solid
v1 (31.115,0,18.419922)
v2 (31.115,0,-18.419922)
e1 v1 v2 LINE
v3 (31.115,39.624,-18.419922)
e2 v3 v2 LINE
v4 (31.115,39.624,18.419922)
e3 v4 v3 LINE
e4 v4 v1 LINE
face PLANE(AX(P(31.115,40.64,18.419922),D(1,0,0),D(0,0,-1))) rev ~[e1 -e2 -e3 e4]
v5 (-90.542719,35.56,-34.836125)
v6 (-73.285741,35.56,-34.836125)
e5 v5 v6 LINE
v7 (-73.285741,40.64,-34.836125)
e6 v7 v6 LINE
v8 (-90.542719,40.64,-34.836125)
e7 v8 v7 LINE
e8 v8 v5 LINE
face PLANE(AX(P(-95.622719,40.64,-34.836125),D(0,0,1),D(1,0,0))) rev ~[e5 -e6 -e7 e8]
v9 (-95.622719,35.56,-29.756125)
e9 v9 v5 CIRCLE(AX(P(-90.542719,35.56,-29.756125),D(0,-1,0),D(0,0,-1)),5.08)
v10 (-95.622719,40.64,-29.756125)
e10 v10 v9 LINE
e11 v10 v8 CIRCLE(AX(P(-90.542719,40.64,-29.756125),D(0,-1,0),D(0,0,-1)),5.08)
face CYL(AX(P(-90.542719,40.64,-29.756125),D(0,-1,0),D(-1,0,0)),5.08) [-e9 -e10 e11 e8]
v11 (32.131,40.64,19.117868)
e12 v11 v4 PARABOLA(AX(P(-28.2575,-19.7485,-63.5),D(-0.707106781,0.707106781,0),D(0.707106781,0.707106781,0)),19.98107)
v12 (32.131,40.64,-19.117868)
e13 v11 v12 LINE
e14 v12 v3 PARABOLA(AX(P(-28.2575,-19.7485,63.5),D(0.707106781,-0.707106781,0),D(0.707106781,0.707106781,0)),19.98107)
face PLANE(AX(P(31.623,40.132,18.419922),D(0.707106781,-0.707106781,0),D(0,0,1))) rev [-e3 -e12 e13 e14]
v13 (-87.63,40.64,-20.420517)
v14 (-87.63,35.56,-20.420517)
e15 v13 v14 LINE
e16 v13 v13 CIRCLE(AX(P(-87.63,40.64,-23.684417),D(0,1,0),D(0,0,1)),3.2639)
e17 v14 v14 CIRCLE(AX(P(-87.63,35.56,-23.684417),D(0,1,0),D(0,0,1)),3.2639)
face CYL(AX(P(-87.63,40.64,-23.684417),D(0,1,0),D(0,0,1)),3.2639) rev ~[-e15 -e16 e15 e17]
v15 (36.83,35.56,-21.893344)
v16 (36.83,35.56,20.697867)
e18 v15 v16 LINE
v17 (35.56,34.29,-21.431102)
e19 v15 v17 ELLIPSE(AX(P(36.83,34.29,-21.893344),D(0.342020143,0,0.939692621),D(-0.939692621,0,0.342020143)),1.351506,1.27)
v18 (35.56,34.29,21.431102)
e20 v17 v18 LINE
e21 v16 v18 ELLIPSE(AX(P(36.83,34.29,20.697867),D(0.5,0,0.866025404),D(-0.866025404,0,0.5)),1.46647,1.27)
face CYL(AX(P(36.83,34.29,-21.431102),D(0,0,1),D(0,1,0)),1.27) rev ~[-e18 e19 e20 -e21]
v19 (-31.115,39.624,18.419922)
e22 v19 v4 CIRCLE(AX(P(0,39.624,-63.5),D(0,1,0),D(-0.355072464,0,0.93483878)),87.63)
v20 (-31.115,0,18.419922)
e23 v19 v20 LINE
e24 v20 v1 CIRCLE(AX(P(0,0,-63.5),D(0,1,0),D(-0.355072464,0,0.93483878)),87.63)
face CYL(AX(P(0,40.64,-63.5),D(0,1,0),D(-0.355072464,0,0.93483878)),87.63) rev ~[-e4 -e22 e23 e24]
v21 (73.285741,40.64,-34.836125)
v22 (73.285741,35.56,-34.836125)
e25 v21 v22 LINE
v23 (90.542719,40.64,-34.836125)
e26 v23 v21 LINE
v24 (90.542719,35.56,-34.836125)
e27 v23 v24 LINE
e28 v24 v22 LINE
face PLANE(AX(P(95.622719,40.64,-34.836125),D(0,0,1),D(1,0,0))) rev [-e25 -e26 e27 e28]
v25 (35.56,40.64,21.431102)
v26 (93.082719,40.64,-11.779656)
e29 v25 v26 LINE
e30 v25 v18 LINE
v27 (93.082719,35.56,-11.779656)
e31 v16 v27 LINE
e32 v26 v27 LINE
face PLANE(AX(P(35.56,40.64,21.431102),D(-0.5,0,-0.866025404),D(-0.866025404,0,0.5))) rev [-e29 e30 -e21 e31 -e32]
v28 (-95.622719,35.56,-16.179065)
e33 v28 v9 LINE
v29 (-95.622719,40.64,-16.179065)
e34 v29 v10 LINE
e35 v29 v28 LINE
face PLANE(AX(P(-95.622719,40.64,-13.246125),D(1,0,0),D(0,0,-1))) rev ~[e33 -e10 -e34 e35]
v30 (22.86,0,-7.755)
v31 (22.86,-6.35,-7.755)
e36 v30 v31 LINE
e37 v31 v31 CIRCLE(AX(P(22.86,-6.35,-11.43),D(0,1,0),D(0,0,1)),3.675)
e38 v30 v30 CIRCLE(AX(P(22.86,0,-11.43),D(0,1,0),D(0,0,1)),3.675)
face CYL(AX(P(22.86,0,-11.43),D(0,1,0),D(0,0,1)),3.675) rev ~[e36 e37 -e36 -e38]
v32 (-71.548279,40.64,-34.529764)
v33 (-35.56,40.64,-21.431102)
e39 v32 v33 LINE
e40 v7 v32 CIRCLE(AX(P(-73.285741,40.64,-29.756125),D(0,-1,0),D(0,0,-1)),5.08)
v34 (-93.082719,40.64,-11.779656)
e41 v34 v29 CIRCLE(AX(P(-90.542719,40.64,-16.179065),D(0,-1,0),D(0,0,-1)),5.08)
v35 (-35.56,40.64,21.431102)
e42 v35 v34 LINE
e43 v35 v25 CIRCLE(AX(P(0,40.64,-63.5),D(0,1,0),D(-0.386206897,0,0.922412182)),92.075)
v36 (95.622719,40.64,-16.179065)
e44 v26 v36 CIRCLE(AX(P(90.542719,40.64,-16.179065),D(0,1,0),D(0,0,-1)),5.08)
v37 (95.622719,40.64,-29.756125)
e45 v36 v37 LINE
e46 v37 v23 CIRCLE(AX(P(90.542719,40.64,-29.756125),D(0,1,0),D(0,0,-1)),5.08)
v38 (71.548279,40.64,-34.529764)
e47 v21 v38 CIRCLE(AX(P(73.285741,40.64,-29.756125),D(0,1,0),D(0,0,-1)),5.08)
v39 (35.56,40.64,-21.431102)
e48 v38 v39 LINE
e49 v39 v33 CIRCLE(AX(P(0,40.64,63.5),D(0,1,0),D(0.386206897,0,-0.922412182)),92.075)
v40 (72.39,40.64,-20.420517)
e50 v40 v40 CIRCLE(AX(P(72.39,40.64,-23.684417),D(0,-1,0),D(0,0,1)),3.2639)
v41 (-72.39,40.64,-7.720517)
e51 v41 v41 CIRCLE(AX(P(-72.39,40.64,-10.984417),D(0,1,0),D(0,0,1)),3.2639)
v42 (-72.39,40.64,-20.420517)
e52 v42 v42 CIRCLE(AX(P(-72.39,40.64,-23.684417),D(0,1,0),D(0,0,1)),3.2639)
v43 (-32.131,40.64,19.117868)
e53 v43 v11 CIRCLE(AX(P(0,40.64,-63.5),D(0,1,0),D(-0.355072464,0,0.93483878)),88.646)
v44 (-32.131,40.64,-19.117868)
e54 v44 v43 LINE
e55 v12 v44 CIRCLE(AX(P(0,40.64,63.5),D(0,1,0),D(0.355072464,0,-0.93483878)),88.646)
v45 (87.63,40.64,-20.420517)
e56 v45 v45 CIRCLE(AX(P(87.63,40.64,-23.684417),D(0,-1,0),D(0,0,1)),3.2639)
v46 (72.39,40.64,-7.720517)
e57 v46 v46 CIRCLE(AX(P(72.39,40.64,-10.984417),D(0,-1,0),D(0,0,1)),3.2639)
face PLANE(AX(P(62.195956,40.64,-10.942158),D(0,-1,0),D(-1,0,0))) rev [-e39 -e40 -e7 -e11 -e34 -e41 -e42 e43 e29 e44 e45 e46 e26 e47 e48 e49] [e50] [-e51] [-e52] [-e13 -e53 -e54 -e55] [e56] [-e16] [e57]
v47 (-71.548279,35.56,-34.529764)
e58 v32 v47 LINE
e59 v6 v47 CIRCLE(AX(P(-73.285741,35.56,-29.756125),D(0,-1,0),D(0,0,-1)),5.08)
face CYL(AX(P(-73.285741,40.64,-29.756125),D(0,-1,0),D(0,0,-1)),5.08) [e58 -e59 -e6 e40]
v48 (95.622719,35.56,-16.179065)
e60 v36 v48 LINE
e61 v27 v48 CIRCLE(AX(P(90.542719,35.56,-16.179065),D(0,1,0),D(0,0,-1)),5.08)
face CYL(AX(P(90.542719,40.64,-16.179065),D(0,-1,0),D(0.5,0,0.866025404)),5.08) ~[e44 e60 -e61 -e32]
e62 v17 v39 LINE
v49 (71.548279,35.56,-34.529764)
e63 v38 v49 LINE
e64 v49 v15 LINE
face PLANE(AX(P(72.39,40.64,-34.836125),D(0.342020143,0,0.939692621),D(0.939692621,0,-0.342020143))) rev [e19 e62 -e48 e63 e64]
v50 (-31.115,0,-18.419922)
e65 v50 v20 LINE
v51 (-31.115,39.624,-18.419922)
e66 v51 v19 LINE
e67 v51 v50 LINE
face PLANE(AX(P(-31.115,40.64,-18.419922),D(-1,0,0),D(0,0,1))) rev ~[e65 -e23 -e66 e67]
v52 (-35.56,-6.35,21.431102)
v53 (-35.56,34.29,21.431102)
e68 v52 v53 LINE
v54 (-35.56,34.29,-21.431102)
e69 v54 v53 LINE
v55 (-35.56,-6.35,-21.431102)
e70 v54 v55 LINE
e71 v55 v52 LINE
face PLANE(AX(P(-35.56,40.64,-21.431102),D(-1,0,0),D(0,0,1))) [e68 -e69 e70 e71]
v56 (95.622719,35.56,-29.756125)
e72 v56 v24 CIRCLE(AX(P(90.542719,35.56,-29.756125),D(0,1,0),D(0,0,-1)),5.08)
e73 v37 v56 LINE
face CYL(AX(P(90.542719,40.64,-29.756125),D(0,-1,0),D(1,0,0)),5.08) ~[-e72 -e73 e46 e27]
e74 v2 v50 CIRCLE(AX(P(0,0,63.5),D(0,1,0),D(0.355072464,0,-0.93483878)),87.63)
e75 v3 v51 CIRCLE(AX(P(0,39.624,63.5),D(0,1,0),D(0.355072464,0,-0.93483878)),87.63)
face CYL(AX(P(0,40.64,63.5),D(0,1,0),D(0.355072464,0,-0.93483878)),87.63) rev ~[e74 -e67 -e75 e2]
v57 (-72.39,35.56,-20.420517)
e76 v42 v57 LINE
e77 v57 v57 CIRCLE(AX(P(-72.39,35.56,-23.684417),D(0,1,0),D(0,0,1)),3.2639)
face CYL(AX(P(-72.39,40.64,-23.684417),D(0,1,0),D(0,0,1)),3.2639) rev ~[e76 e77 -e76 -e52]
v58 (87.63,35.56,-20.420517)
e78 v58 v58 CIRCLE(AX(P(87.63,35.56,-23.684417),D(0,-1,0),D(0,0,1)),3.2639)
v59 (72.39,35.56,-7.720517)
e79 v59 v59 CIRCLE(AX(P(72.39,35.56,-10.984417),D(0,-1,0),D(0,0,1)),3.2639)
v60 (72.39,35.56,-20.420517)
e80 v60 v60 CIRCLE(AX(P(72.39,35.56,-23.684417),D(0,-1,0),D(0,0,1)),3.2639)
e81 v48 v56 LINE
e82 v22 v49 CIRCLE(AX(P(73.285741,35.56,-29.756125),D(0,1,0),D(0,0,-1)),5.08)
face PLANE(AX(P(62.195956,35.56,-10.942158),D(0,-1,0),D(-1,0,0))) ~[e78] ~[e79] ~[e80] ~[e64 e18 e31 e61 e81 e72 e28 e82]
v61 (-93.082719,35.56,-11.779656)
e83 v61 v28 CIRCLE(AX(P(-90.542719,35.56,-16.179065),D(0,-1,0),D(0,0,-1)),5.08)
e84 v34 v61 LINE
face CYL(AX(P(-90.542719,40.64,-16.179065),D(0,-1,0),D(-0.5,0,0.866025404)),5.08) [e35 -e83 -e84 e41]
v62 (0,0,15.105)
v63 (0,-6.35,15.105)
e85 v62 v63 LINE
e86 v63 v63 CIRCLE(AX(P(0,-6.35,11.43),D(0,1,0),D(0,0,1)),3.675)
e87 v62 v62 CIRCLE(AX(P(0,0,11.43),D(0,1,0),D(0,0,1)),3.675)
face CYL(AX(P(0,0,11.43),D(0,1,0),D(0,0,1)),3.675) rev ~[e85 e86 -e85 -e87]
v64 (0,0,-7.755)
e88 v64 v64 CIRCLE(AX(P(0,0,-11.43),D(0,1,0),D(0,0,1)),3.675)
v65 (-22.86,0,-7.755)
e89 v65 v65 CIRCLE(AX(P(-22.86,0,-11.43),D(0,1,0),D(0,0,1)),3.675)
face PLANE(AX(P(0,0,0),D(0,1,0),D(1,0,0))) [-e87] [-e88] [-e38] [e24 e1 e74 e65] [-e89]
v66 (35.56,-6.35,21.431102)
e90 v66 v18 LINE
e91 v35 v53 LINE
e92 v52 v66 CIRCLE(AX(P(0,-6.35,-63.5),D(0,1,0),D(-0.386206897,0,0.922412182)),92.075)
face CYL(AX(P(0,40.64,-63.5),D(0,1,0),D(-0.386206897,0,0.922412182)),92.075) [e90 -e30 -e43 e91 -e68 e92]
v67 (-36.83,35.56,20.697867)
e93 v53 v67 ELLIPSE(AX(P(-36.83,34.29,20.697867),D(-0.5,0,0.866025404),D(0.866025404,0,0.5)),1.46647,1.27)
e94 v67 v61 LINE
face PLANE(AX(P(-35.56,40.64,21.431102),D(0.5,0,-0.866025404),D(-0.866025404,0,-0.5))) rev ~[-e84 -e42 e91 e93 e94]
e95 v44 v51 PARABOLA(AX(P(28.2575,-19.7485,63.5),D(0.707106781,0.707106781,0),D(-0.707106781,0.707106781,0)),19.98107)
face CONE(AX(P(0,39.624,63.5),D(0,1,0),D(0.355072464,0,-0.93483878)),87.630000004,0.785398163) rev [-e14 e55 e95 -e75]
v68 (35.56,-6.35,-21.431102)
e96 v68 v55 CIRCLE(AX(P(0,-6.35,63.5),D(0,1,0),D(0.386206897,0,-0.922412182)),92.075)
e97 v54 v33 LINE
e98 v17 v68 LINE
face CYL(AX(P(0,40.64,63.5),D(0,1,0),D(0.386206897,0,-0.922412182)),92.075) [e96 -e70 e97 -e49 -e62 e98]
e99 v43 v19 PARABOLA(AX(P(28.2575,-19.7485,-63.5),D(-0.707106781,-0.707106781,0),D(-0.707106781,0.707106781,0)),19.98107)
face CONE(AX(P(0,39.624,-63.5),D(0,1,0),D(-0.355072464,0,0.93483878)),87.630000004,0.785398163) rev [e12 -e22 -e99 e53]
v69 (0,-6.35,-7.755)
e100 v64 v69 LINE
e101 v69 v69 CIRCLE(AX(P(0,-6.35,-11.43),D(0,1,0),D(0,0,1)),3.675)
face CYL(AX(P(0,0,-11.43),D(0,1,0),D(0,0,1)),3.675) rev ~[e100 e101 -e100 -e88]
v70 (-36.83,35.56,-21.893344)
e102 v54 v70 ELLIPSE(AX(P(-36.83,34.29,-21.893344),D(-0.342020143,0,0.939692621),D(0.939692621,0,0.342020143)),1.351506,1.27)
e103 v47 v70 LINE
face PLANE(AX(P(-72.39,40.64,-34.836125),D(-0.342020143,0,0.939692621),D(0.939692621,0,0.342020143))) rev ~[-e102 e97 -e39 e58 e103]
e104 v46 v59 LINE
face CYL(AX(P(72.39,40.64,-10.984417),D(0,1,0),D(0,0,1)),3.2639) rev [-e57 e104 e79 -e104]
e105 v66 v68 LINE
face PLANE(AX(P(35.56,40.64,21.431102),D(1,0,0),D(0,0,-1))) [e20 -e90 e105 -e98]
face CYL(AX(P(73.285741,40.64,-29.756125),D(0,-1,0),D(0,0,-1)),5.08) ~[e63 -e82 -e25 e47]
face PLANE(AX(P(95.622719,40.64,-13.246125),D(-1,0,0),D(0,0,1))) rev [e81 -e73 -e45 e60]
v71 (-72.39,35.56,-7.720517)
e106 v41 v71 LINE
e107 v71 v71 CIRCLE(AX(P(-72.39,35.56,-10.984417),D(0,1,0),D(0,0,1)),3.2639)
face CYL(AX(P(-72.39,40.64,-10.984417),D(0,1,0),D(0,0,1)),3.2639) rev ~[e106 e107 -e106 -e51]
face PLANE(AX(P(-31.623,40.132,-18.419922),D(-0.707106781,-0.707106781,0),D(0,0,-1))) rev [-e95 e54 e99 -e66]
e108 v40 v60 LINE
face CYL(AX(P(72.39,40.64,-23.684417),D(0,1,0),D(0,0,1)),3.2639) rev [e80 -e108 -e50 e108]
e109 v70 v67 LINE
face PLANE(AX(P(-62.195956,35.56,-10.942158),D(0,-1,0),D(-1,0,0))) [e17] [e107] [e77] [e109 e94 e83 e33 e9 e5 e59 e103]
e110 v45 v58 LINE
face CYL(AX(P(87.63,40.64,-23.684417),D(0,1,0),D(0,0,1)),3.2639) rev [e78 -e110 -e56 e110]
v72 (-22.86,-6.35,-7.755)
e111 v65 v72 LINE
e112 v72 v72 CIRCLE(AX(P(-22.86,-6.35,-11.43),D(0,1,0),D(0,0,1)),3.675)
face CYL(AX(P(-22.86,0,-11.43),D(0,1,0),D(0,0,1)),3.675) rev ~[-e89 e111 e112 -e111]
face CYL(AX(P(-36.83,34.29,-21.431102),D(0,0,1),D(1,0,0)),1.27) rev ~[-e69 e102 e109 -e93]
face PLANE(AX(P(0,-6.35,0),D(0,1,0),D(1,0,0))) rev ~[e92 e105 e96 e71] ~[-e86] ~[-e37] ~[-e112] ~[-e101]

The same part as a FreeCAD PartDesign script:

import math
import FreeCAD as App
import Part
import Sketcher
Q = App.Units.Quantity


def edges_at(feature, points):
    """Names of the edges that pass closest to the given points."""
    edges = feature.Shape.Edges
    near = lambda p: min(range(len(edges)), key=lambda i: edges[i].distToShape(Part.Vertex(*p))[0])
    return sorted({f"Edge{near(p) + 1}" for p in points})


def add_polygon(sketch, points):
    """Adds a closed chain of lines whose ends are joined by coincident constraints."""
    first, n = sketch.GeometryCount, len(points)
    for a, b in zip(points, points[1:] + points[:1]):
        sketch.addGeometry(Part.LineSegment(App.Vector(*a, 0), App.Vector(*b, 0)), False)
    for i in range(n):
        sketch.addConstraint(Sketcher.Constraint("Coincident", first + i, 2, first + (i + 1) % n, 1))

doc = App.newDocument("Part")
body = doc.addObject("PartDesign::Body", "Body")

# Sketch on XZ plane
sketch1 = body.newObject("Sketcher::SketchObject", "Sketch")
sketch1.AttachmentSupport = (doc.getObject("XZ_Plane"), [""])
sketch1.MapMode = "FlatFace"
sketch1.addGeometry(Part.LineSegment(App.Vector(-35.6, -21.4, 0), App.Vector(-35.6, 21.4, 0)), False)
sketch1.addGeometry(Part.ArcOfCircle(Part.Circle(App.Vector(0, -63.5, 0), App.Vector(0, 0, 1), 92.1), math.radians(67), math.radians(113)), False)
sketch1.addGeometry(Part.LineSegment(App.Vector(35.6, 21.4, 0), App.Vector(35.6, -21.4, 0)), False)
sketch1.addGeometry(Part.ArcOfCircle(Part.Circle(App.Vector(0, 63.5, 0), App.Vector(0, 0, 1), 92.1), math.radians(-113), math.radians(-67)), False)
sketch1.addGeometry(Part.Circle(App.Vector(0, 11.4, 0), App.Vector(0, 0, 1), 3.7), False)
sketch1.addGeometry(Part.Circle(App.Vector(-22.9, -11.4, 0), App.Vector(0, 0, 1), 3.7), False)
sketch1.addGeometry(Part.Circle(App.Vector(0, -11.4, 0), App.Vector(0, 0, 1), 3.7), False)
sketch1.addGeometry(Part.Circle(App.Vector(22.9, -11.4, 0), App.Vector(0, 0, 1), 3.7), False)
sketch1.addConstraint(Sketcher.Constraint("Coincident", 0, 2, 1, 2))
sketch1.addConstraint(Sketcher.Constraint("Coincident", 1, 1, 2, 1))
sketch1.addConstraint(Sketcher.Constraint("Coincident", 2, 2, 3, 2))
sketch1.addConstraint(Sketcher.Constraint("Coincident", 3, 1, 0, 1))
sketch1.addConstraint(Sketcher.Constraint("Vertical", 0))
sketch1.addConstraint(Sketcher.Constraint("Vertical", 2))
sketch1.addConstraint(Sketcher.Constraint("Equal", 1, 3))
sketch1.addConstraint(Sketcher.Constraint("Equal", 4, 5))
sketch1.addConstraint(Sketcher.Constraint("Equal", 5, 6))
sketch1.addConstraint(Sketcher.Constraint("Equal", 6, 7))
sketch1.addConstraint(Sketcher.Constraint("Symmetric", 1, 3, 3, 3, -1, 1))
sketch1.addConstraint(Sketcher.Constraint("Symmetric", 4, 3, 6, 3, -1, 1))
sketch1.addConstraint(Sketcher.Constraint("Symmetric", 5, 3, 7, 3, -2))
sketch1.addConstraint(Sketcher.Constraint("Symmetric", 0, 2, 1, 1, -2))
sketch1.addConstraint(Sketcher.Constraint("PointOnObject", 4, 3, -2))
sketch1.addConstraint(Sketcher.Constraint("Horizontal", 5, 3, 6, 3))
sketch1.addConstraint(Sketcher.Constraint("Radius", 1, Q("3.625 in")))
sketch1.addConstraint(Sketcher.Constraint("DistanceY", 1, 3, 3, 3, Q("5 in")))
sketch1.addConstraint(Sketcher.Constraint("DistanceX", 5, 3, -1, 1, Q("0.9 in")))
sketch1.addConstraint(Sketcher.Constraint("DistanceX", 0, 2, -1, 1, Q("1.4 in")))
sketch1.addConstraint(Sketcher.Constraint("DistanceY", 5, 3, 4, 3, Q("0.9 in")))
sketch1.addConstraint(Sketcher.Constraint("Diameter", 4, 7.35))
pad1 = body.newObject("PartDesign::Pad", "Pad")
pad1.Profile = sketch1
pad1.Length = Q("0.25 in")

# Sketch on XZ plane
sketch2 = body.newObject("Sketcher::SketchObject", "Sketch001")
sketch2.AttachmentSupport = (doc.getObject("XZ_Plane"), [""])
sketch2.MapMode = "FlatFace"
sketch2.AttachmentOffset = App.Placement(App.Vector(0, 0, -1.6 * 25.4), App.Rotation())
sketch2.addGeometry(Part.LineSegment(App.Vector(-36, -21, 0), App.Vector(-36, 21, 0)), False)
sketch2.addGeometry(Part.ArcOfCircle(Part.Circle(App.Vector(0, -63, 0), App.Vector(0, 0, 1), 92), math.radians(67), math.radians(113)), False)
sketch2.addGeometry(Part.LineSegment(App.Vector(36, 21, 0), App.Vector(36, -21, 0)), False)
sketch2.addGeometry(Part.ArcOfCircle(Part.Circle(App.Vector(0, 63, 0), App.Vector(0, 0, 1), 92), math.radians(-113), math.radians(-67)), False)
sketch2.addGeometry(Part.LineSegment(App.Vector(-31, 18, 0), App.Vector(-31, -18, 0)), False)
sketch2.addGeometry(Part.ArcOfCircle(Part.Circle(App.Vector(0, 64, 0), App.Vector(0, 0, 1), 88), math.radians(-111), math.radians(-69)), False)
sketch2.addGeometry(Part.LineSegment(App.Vector(31, -18, 0), App.Vector(31, 18, 0)), False)
sketch2.addGeometry(Part.ArcOfCircle(Part.Circle(App.Vector(0, -64, 0), App.Vector(0, 0, 1), 88), math.radians(69), math.radians(111)), False)
sketch2.addConstraint(Sketcher.Constraint("Coincident", 0, 2, 1, 2))
sketch2.addConstraint(Sketcher.Constraint("Coincident", 1, 1, 2, 1))
sketch2.addConstraint(Sketcher.Constraint("Coincident", 2, 2, 3, 2))
sketch2.addConstraint(Sketcher.Constraint("Coincident", 3, 1, 0, 1))
sketch2.addConstraint(Sketcher.Constraint("Coincident", 4, 2, 5, 1))
sketch2.addConstraint(Sketcher.Constraint("Coincident", 5, 2, 6, 1))
sketch2.addConstraint(Sketcher.Constraint("Coincident", 6, 2, 7, 1))
sketch2.addConstraint(Sketcher.Constraint("Coincident", 7, 2, 4, 1))
sketch2.addConstraint(Sketcher.Constraint("Vertical", 0))
sketch2.addConstraint(Sketcher.Constraint("Vertical", 2))
sketch2.addConstraint(Sketcher.Constraint("Vertical", 4))
sketch2.addConstraint(Sketcher.Constraint("Vertical", 6))
sketch2.addConstraint(Sketcher.Constraint("Coincident", 5, 3, 3, 3))
sketch2.addConstraint(Sketcher.Constraint("Coincident", 7, 3, 1, 3))
sketch2.addConstraint(Sketcher.Constraint("Equal", 1, 3))
sketch2.addConstraint(Sketcher.Constraint("Equal", 5, 7))
sketch2.addConstraint(Sketcher.Constraint("Symmetric", 1, 3, 3, 3, -1, 1))
sketch2.addConstraint(Sketcher.Constraint("Symmetric", 0, 2, 1, 1, -2))
sketch2.addConstraint(Sketcher.Constraint("Horizontal", 4, 2, 5, 2))
sketch2.addConstraint(Sketcher.Constraint("Radius", 5, Q("3.45 in")))
sketch2.addConstraint(Sketcher.Constraint("Radius", 1, Q("3.625 in")))
sketch2.addConstraint(Sketcher.Constraint("DistanceY", 1, 3, 3, 3, Q("5 in")))
sketch2.addConstraint(Sketcher.Constraint("DistanceX", 0, 2, -1, 1, Q("1.4 in")))
sketch2.addConstraint(Sketcher.Constraint("DistanceX", 4, 2, 5, 2, Q("2.45 in")))
pad2 = body.newObject("PartDesign::Pad", "Pad001")
pad2.Profile = sketch2
pad2.Length = Q("1.6 in")
doc.recompute()

chamfer = body.newObject("PartDesign::Chamfer", "Chamfer")
chamfer.Base = (pad2, edges_at(pad2, [
    (0, 40.64, -24.13),
    (-31.115, 40.64, 0),
    (0, 40.64, 24.13),
    (31.115, 40.64, 0),
]))
chamfer.Size = Q("0.04 in")

# Sketch on XZ plane
sketch3 = body.newObject("Sketcher::SketchObject", "Sketch002")
sketch3.AttachmentSupport = (doc.getObject("XZ_Plane"), [""])
sketch3.MapMode = "FlatFace"
sketch3.AttachmentOffset = App.Placement(App.Vector(0, 0, -1.6 * 25.4), App.Rotation())
add_polygon(sketch3, [(-95.6, -13.2), (-35.6, 21.4), (-35.6, -21.4), (-72.4, -34.8), (-95.6, -34.8)])  # lines 0-4
sketch3.addGeometry(Part.Circle(App.Vector(-72.4, -11, 0), App.Vector(0, 0, 1), 3.3), False)  # 5
sketch3.addGeometry(Part.Circle(App.Vector(-72.4, -23.7, 0), App.Vector(0, 0, 1), 3.3), False)  # 6
sketch3.addGeometry(Part.Circle(App.Vector(-87.6, -23.7, 0), App.Vector(0, 0, 1), 3.3), False)  # 7
sketch3.addConstraint(Sketcher.Constraint("Vertical", 1))
sketch3.addConstraint(Sketcher.Constraint("Horizontal", 3))
sketch3.addConstraint(Sketcher.Constraint("Vertical", 4))
sketch3.addConstraint(Sketcher.Constraint("Equal", 5, 6))
sketch3.addConstraint(Sketcher.Constraint("Equal", 6, 7))
sketch3.addConstraint(Sketcher.Constraint("Horizontal", 6, 3, 7, 3))
sketch3.addConstraint(Sketcher.Constraint("Vertical", 5, 3, 6, 3))
sketch3.addConstraint(Sketcher.Constraint("Vertical", 6, 3, 2, 2))
sketch3.addConstraint(Sketcher.Constraint("Diameter", 5, Q("0.257 in")))
sketch3.addConstraint(Sketcher.Constraint("Angle", 0, Q("30 deg")))
sketch3.addConstraint(Sketcher.Constraint("Angle", 2, Q("-160 deg")))
sketch3.addConstraint(Sketcher.Constraint("DistanceY", 4, 1, 4, 2, Q("0.85 in")))
sketch3.addConstraint(Sketcher.Constraint("DistanceX", 0, 2, -1, 1, Q("1.4 in")))
sketch3.addConstraint(Sketcher.Constraint("DistanceY", 6, 3, 5, 3, Q("0.5 in")))
sketch3.addConstraint(Sketcher.Constraint("DistanceX", 7, 3, 6, 3, Q("0.6 in")))
sketch3.addConstraint(Sketcher.Constraint("DistanceX", 5, 3, -1, 1, Q("2.85 in")))
sketch3.addConstraint(Sketcher.Constraint("DistanceX", 3, 2, 3, 1, 23.232719))
sketch3.addConstraint(Sketcher.Constraint("DistanceY", -1, 1, 0, 2, 21.431102))
sketch3.addConstraint(Sketcher.Constraint("DistanceY", 5, 3, 0, 2, 32.415519))
pad3 = body.newObject("PartDesign::Pad", "Pad002")
pad3.Profile = sketch3
pad3.Length = Q("0.2 in")
doc.recompute()

fillet = body.newObject("PartDesign::Fillet", "Fillet")
fillet.Base = (pad3, edges_at(pad3, [(-95.623, 38.1, -13.246), (-95.623, 38.1, -34.836), (-72.39, 38.1, -34.836)]))
fillet.Radius = Q("0.2 in")
doc.recompute()

mirrored = body.newObject("PartDesign::Mirrored", "Mirrored")
mirrored.Originals = [pad3]
mirrored.MirrorPlane = (doc.getObject("YZ_Plane"), [""])
body.Tip = mirrored
doc.recompute()

fillet2 = body.newObject("PartDesign::Fillet", "Fillet001")
fillet2.Base = (mirrored, edges_at(mirrored, [(95.623, 38.1, -13.246), (95.623, 38.1, -34.836), (72.39, 38.1, -34.836)]))
fillet2.Radius = Q("0.2 in")
doc.recompute()

fillet3 = body.newObject("PartDesign::Fillet", "Fillet002")
fillet3.Base = (fillet2, edges_at(fillet2, [(35.56, 35.56, 0), (-35.56, 35.56, 0)]))
fillet3.Radius = Q("0.05 in")

doc.recompute()
